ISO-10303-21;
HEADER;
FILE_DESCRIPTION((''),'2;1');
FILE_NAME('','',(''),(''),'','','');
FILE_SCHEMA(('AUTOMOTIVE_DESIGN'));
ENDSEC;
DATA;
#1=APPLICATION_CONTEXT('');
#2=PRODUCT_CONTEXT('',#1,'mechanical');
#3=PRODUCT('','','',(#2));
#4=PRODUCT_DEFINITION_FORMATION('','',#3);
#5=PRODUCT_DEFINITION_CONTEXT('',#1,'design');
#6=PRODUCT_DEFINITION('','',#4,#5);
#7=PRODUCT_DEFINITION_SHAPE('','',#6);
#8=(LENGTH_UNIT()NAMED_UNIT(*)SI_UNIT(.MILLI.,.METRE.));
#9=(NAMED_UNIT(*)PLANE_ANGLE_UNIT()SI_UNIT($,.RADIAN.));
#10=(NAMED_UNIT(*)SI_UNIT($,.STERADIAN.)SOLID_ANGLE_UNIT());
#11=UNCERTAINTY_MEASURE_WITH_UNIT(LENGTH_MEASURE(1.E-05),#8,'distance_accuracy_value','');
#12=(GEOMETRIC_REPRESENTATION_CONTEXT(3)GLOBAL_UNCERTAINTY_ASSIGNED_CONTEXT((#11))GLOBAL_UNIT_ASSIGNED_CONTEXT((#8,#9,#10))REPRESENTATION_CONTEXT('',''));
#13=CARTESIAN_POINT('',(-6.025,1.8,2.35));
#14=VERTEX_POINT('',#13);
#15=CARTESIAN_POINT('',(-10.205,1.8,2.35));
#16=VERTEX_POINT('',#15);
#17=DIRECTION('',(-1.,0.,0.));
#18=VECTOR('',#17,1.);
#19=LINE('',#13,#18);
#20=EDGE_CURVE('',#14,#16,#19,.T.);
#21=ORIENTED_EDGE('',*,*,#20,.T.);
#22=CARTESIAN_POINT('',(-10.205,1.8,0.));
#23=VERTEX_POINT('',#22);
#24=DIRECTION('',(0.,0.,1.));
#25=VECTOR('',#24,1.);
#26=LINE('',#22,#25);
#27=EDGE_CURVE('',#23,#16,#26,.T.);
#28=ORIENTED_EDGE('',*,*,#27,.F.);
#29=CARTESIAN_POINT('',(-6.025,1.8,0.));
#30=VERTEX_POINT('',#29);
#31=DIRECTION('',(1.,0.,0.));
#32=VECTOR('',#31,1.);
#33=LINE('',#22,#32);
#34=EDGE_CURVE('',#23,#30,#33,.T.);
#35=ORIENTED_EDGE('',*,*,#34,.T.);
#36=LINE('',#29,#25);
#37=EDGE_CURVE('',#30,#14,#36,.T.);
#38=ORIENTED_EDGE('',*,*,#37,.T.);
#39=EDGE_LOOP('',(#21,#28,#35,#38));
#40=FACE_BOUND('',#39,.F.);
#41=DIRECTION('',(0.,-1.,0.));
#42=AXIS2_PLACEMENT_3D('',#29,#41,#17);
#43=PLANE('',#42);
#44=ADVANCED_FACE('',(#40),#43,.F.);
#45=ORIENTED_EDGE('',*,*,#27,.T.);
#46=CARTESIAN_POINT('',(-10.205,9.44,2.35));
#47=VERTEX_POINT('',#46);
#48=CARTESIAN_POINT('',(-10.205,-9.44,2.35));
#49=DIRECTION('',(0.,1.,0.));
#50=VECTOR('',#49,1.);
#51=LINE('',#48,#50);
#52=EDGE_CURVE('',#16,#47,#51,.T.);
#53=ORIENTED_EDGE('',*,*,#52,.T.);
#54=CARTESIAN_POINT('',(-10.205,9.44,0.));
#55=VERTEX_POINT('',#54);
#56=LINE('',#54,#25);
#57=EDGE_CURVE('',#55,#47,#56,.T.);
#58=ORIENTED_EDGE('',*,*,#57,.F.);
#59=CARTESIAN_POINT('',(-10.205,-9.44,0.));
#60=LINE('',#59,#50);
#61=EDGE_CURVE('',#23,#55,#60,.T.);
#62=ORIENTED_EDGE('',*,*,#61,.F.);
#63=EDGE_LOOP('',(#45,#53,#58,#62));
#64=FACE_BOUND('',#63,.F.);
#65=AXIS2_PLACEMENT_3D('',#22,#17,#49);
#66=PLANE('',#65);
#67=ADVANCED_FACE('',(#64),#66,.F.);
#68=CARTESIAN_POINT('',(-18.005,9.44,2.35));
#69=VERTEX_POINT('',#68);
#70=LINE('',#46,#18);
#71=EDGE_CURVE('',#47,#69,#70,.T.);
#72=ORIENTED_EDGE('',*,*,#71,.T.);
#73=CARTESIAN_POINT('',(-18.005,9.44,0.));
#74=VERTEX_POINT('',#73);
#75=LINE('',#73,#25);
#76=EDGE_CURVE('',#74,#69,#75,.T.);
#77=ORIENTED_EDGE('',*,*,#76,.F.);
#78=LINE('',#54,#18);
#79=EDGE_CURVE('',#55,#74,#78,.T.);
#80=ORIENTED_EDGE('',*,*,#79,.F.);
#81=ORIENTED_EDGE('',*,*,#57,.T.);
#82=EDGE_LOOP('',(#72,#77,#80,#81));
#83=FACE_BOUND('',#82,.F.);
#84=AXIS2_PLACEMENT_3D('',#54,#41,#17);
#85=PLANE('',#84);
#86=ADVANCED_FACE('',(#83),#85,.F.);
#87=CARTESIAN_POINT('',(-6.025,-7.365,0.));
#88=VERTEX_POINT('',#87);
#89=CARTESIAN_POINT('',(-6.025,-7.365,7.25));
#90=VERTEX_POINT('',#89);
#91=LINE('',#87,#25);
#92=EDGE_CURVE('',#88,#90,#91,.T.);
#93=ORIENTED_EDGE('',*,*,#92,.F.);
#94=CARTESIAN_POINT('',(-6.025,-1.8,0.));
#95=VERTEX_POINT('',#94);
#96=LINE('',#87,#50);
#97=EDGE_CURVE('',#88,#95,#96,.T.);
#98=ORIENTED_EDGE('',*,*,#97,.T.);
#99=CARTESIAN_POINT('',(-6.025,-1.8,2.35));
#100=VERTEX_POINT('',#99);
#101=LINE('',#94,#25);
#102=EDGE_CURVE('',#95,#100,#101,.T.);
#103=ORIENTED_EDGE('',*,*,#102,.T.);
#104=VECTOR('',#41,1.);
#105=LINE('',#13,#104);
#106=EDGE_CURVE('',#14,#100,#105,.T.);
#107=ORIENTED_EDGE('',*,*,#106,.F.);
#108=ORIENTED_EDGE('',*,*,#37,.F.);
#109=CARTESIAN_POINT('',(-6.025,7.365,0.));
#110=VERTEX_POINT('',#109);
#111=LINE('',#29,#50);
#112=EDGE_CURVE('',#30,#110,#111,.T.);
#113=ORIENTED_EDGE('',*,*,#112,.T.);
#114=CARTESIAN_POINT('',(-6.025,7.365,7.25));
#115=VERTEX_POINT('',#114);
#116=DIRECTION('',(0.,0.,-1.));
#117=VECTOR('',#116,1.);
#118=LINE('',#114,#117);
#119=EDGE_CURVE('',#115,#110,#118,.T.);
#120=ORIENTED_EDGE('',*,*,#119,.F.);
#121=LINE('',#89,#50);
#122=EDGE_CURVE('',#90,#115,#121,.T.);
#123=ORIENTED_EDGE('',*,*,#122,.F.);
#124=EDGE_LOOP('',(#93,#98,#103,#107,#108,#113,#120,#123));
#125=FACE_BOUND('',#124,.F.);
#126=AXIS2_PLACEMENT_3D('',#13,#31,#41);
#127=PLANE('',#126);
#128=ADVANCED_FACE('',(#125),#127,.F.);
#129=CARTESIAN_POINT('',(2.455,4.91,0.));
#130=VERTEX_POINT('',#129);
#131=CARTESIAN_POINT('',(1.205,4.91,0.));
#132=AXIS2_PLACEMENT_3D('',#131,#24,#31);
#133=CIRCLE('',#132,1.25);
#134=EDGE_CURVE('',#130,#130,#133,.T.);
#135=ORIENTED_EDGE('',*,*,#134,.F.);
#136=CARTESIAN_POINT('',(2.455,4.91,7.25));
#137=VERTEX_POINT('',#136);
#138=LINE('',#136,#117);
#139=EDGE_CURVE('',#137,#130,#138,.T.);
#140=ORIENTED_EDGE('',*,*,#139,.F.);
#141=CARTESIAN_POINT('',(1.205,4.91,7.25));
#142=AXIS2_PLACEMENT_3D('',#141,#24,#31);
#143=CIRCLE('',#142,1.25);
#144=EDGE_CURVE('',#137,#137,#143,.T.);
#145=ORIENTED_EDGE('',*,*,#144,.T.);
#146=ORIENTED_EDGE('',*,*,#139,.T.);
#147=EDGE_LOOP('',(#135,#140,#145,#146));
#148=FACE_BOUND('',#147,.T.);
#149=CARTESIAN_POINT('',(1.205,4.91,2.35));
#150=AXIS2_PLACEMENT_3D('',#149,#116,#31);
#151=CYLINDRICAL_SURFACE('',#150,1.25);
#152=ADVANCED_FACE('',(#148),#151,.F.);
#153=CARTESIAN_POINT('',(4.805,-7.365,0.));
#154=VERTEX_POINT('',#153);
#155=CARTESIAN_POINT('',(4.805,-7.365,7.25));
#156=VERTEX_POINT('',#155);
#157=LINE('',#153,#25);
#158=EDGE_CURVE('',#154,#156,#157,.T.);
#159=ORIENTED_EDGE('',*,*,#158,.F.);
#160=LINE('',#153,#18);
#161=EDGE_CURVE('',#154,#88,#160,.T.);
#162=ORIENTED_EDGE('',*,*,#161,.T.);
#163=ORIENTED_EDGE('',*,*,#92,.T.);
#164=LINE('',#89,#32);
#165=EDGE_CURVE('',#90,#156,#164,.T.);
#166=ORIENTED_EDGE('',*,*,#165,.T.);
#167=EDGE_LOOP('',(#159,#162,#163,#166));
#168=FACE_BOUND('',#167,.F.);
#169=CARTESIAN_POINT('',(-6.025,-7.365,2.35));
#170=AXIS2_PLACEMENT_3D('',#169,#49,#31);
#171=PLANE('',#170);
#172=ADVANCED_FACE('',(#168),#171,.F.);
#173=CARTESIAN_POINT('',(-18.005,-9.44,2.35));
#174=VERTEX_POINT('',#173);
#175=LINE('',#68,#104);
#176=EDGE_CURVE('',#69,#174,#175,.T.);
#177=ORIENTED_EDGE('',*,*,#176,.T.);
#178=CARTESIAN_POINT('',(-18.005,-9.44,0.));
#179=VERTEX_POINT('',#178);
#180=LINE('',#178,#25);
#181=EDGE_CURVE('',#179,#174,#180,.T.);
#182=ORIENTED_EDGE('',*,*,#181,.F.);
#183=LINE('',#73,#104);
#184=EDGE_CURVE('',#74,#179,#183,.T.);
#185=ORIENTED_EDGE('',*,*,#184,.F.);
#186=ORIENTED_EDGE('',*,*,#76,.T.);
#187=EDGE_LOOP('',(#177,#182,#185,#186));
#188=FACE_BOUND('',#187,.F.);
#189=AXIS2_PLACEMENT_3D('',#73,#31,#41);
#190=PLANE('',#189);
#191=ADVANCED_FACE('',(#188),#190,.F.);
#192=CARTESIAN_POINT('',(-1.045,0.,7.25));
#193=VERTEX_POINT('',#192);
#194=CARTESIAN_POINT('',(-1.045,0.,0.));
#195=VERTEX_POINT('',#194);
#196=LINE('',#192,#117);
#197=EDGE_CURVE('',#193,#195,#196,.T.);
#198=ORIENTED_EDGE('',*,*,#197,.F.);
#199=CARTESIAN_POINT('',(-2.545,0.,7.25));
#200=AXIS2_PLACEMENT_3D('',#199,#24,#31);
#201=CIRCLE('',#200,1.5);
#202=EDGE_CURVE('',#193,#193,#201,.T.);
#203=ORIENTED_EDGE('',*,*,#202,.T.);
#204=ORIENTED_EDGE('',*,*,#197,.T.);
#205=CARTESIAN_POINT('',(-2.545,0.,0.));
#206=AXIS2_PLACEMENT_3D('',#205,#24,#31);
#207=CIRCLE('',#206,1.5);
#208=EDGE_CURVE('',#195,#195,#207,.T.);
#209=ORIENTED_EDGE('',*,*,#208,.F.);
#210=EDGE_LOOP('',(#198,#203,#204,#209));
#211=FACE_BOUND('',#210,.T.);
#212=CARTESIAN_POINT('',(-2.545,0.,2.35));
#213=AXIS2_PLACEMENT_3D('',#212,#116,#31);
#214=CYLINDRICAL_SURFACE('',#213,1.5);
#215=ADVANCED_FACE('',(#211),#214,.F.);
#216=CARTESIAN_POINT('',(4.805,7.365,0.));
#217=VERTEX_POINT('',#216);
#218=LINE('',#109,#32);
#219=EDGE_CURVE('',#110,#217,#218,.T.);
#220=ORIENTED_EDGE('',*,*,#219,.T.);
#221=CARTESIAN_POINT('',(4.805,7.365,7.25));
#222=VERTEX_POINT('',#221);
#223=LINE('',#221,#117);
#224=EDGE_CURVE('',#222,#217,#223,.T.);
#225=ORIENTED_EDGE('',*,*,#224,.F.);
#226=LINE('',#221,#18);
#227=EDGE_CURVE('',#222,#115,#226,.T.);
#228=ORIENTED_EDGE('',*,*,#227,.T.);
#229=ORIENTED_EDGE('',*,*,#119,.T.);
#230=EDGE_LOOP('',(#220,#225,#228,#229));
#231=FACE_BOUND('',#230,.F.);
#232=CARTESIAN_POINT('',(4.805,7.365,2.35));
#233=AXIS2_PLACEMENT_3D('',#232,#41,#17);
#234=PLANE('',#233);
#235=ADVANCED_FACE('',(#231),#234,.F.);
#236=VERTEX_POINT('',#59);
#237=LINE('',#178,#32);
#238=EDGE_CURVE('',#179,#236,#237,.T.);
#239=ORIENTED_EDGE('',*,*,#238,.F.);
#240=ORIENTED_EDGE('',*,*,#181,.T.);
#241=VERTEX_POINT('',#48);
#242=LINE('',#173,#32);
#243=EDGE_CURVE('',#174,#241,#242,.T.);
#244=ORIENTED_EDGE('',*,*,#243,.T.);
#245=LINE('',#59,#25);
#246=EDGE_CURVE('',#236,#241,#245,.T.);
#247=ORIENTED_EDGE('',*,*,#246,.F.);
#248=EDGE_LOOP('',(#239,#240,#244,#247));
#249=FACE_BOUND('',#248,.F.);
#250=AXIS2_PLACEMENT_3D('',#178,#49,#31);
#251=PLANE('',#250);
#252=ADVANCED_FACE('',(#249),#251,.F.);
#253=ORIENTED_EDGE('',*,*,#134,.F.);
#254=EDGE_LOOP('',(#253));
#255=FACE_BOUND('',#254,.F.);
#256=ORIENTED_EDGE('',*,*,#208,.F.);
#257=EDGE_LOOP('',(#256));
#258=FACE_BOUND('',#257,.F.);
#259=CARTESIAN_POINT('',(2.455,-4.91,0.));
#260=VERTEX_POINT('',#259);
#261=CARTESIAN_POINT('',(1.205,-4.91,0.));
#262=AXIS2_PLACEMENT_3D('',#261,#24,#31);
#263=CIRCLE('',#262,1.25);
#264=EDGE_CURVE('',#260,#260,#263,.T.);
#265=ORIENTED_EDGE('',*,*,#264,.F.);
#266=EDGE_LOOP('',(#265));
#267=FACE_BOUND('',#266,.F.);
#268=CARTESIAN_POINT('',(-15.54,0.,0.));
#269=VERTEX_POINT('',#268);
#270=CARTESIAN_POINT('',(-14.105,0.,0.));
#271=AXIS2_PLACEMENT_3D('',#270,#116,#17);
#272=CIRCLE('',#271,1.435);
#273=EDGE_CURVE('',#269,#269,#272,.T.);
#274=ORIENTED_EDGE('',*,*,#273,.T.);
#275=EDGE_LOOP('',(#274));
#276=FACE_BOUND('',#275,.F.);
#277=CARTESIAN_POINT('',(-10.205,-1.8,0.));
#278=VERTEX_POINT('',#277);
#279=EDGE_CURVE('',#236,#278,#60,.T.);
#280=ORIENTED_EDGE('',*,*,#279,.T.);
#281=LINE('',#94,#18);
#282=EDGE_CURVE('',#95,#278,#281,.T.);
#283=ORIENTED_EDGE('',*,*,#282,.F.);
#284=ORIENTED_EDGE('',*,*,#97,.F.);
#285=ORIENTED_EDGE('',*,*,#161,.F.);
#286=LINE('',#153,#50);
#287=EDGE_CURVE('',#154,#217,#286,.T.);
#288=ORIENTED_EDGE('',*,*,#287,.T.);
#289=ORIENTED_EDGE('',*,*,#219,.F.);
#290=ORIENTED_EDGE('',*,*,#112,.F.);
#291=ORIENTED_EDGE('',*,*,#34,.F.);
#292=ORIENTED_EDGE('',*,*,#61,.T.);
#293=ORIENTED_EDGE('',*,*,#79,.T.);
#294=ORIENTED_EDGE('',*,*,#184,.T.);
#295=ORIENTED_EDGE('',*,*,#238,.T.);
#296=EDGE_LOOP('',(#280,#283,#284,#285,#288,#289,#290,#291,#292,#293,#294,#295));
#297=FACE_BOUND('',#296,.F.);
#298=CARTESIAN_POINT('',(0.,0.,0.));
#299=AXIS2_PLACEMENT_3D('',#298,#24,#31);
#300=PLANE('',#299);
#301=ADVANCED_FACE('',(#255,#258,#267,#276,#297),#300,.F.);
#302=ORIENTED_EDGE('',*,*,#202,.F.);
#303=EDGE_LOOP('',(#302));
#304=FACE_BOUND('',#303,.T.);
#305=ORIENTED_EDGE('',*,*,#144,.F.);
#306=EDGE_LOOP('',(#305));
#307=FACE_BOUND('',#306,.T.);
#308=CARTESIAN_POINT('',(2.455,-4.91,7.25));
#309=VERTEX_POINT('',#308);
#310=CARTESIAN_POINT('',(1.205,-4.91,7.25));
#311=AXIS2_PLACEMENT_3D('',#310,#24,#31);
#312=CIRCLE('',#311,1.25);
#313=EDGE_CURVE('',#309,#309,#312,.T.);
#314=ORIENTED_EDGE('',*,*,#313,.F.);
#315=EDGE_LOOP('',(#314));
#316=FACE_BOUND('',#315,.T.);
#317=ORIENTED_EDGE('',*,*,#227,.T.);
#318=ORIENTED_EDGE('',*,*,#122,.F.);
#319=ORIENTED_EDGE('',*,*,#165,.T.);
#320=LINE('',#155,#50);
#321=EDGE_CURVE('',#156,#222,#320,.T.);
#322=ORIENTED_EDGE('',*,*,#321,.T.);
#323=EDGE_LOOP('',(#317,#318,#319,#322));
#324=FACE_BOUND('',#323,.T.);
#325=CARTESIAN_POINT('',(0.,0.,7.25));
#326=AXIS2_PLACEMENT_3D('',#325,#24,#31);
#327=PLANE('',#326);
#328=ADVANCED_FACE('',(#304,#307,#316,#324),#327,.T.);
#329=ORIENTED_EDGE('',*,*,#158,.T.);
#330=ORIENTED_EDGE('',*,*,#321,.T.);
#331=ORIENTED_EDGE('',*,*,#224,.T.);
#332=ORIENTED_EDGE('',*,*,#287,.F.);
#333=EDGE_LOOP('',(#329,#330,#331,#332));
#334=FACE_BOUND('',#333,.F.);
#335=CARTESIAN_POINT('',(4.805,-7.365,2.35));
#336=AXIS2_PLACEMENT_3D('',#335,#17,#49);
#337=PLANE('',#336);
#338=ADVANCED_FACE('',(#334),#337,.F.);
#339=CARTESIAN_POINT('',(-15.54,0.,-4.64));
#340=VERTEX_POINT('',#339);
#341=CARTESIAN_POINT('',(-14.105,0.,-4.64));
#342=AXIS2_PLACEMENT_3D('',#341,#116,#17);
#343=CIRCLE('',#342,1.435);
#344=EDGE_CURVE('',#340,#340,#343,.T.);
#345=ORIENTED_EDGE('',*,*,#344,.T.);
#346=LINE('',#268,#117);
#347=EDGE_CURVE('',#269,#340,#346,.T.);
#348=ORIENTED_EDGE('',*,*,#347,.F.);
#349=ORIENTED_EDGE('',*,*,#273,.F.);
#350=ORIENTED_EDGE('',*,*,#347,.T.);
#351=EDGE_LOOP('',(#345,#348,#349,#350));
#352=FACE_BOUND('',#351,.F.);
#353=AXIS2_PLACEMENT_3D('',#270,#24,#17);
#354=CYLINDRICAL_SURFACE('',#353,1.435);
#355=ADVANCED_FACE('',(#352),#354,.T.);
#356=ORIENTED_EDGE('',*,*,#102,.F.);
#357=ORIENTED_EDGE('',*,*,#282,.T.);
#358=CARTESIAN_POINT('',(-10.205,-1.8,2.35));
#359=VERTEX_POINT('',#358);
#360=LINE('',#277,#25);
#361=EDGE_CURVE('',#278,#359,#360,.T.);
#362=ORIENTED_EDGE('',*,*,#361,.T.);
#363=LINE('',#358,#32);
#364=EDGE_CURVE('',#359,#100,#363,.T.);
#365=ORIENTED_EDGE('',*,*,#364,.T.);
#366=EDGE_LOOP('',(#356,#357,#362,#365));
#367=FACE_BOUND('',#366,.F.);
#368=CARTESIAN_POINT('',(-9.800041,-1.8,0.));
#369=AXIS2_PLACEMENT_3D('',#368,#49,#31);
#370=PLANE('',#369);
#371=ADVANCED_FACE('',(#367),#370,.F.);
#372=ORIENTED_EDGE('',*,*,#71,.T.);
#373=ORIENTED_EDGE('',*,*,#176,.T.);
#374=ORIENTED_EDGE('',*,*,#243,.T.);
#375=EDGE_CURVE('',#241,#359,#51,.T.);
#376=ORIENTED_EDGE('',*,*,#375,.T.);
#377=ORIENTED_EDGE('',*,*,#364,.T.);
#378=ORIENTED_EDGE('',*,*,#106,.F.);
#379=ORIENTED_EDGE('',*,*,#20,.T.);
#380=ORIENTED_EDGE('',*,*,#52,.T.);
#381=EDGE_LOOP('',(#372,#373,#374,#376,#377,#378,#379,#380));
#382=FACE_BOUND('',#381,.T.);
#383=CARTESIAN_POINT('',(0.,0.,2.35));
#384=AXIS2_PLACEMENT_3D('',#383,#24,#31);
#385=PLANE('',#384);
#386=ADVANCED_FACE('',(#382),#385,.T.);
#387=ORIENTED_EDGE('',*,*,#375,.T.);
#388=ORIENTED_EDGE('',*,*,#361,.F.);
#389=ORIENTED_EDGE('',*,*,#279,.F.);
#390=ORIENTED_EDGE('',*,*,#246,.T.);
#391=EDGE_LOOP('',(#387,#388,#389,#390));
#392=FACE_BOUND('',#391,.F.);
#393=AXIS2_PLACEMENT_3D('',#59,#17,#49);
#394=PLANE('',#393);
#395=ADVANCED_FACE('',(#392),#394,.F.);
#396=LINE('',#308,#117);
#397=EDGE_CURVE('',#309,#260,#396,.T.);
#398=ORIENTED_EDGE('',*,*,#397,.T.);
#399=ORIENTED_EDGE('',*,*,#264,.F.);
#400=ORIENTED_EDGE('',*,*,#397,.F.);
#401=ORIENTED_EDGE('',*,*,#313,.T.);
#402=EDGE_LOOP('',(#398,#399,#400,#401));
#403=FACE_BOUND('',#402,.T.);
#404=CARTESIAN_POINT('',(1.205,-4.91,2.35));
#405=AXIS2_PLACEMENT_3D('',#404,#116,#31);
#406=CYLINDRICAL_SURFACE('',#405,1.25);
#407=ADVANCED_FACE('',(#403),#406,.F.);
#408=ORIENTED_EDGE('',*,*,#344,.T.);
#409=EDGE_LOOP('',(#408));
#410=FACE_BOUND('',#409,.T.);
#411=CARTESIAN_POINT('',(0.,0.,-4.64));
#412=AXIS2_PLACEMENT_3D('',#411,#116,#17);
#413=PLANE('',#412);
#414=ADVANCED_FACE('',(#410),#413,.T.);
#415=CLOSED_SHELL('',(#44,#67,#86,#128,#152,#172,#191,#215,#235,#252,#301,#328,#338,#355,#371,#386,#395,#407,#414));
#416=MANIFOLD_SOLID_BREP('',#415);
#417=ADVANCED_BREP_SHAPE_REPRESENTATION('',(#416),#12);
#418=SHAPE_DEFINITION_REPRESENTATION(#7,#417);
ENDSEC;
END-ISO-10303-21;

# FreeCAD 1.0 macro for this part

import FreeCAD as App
import Part
import Sketcher

doc = App.newDocument("Part")
body = doc.addObject("PartDesign::Body", "Body")

# Sketch on XY plane
sketch1 = doc.addObject("Sketcher::SketchObject", "Sketch")
body.addObject(sketch1)
sketch1.AttachmentSupport = (doc.XY_Plane, [""])
sketch1.MapMode = "FlatFace"
sketch1.addGeometry([
    Part.LineSegment(App.Vector(4.8, 7.4, 0), App.Vector(-6, 7.4, 0)),  # 0
    Part.LineSegment(App.Vector(-6, 7.4, 0), App.Vector(-6, 1.8, 0)),  # 1
    Part.LineSegment(App.Vector(-6, 1.8, 0), App.Vector(-10.2, 1.8, 0)),  # 2
    Part.LineSegment(App.Vector(-10.2, 1.8, 0), App.Vector(-10.2, 9.4, 0)),  # 3
    Part.LineSegment(App.Vector(-10.2, 9.4, 0), App.Vector(-18, 9.4, 0)),  # 4
    Part.LineSegment(App.Vector(-18, 9.4, 0), App.Vector(-18, -9.4, 0)),  # 5
    Part.LineSegment(App.Vector(-18, -9.4, 0), App.Vector(-10.2, -9.4, 0)),  # 6
    Part.LineSegment(App.Vector(-10.2, -9.4, 0), App.Vector(-10.2, -1.8, 0)),  # 7
    Part.LineSegment(App.Vector(-10.2, -1.8, 0), App.Vector(-6, -1.8, 0)),  # 8
    Part.LineSegment(App.Vector(-6, -1.8, 0), App.Vector(-6, -7.4, 0)),  # 9
    Part.LineSegment(App.Vector(-6, -7.4, 0), App.Vector(4.8, -7.4, 0)),  # 10
    Part.LineSegment(App.Vector(4.8, -7.4, 0), App.Vector(4.8, 7.4, 0)),  # 11
    Part.Circle(App.Vector(1.2, -4.9, 0), App.Vector(0, 0, 1), 1.2),  # 12
    Part.Circle(App.Vector(-2.5, 0, 0), App.Vector(0, 0, 1), 1.5),  # 13
    Part.Circle(App.Vector(1.2, 4.9, 0), App.Vector(0, 0, 1), 1.2),  # 14
], False)
sketch1.addConstraint([
    Sketcher.Constraint("Coincident", 0, 2, 1, 1),
    Sketcher.Constraint("Coincident", 1, 2, 2, 1),
    Sketcher.Constraint("Coincident", 2, 2, 3, 1),
    Sketcher.Constraint("Coincident", 3, 2, 4, 1),
    Sketcher.Constraint("Coincident", 4, 2, 5, 1),
    Sketcher.Constraint("Coincident", 5, 2, 6, 1),
    Sketcher.Constraint("Coincident", 6, 2, 7, 1),
    Sketcher.Constraint("Coincident", 7, 2, 8, 1),
    Sketcher.Constraint("Coincident", 8, 2, 9, 1),
    Sketcher.Constraint("Coincident", 9, 2, 10, 1),
    Sketcher.Constraint("Coincident", 10, 2, 11, 1),
    Sketcher.Constraint("Coincident", 11, 2, 0, 1),
    Sketcher.Constraint("Horizontal", 0),
    Sketcher.Constraint("Vertical", 1),
    Sketcher.Constraint("Horizontal", 2),
    Sketcher.Constraint("Vertical", 3),
    Sketcher.Constraint("Horizontal", 4),
    Sketcher.Constraint("Vertical", 5),
    Sketcher.Constraint("Horizontal", 6),
    Sketcher.Constraint("Vertical", 7),
    Sketcher.Constraint("Horizontal", 8),
    Sketcher.Constraint("Vertical", 9),
    Sketcher.Constraint("Horizontal", 10),
    Sketcher.Constraint("Vertical", 11),
    Sketcher.Constraint("Equal", 12, 14),
    Sketcher.Constraint("Symmetric", 12, 3, 14, 3, -1),
    Sketcher.Constraint("Symmetric", 3, 2, 6, 2, -1),
    Sketcher.Constraint("Symmetric", 1, 2, 8, 2, -1),
    Sketcher.Constraint("PointOnObject", 13, 3, -1),
    Sketcher.Constraint("Equal", 1, 9),
    Sketcher.Constraint("Diameter", 13, 3.0),
    Sketcher.Constraint("DistanceX", 4, 2, 4, 1, 7.8),
    Sketcher.Constraint("Diameter", 12, 2.5),
    Sketcher.Constraint("DistanceX", 0, 2, 0, 1, 10.83),
    Sketcher.Constraint("DistanceX", 2, 2, 2, 1, 4.18),
    Sketcher.Constraint("DistanceY", 5, 2, 5, 1, 18.88),
    Sketcher.Constraint("DistanceY", 11, 1, 11, 2, 14.73),
    Sketcher.Constraint("DistanceY", 7, 2, 2, 2, 3.6),
    Sketcher.Constraint("DistanceX", 12, 3, 10, 2, 3.6),
    Sketcher.Constraint("DistanceY", 12, 3, -1, 1, 4.91),
    Sketcher.Constraint("DistanceX", 13, 3, 12, 3, 3.75),
    Sketcher.Constraint("DistanceX", -1, 1, 12, 3, 1.205),
])
pad1 = doc.addObject("PartDesign::Pad", "Pad")
body.addObject(pad1)
pad1.Profile = sketch1
pad1.Length = 2.35

# Sketch on XY plane
sketch2 = doc.addObject("Sketcher::SketchObject", "Sketch001")
body.addObject(sketch2)
sketch2.AttachmentSupport = (doc.XY_Plane, [""])
sketch2.MapMode = "FlatFace"
sketch2.AttachmentOffset = App.Placement(App.Vector(0, 0, 2.35), App.Rotation())
sketch2.addGeometry([
    Part.LineSegment(App.Vector(-6, 7.4, 0), App.Vector(-6, -7.4, 0)),  # 0
    Part.LineSegment(App.Vector(-6, -7.4, 0), App.Vector(4.8, -7.4, 0)),  # 1
    Part.LineSegment(App.Vector(4.8, -7.4, 0), App.Vector(4.8, 7.4, 0)),  # 2
    Part.LineSegment(App.Vector(4.8, 7.4, 0), App.Vector(-6, 7.4, 0)),  # 3
    Part.Circle(App.Vector(1.2, -4.9, 0), App.Vector(0, 0, 1), 1.2),  # 4
    Part.Circle(App.Vector(-2.5, 0, 0), App.Vector(0, 0, 1), 1.5),  # 5
    Part.Circle(App.Vector(1.2, 4.9, 0), App.Vector(0, 0, 1), 1.2),  # 6
], False)
sketch2.addConstraint([
    Sketcher.Constraint("Coincident", 0, 2, 1, 1),
    Sketcher.Constraint("Coincident", 1, 2, 2, 1),
    Sketcher.Constraint("Coincident", 2, 2, 3, 1),
    Sketcher.Constraint("Coincident", 3, 2, 0, 1),
    Sketcher.Constraint("Vertical", 0),
    Sketcher.Constraint("Horizontal", 1),
    Sketcher.Constraint("Vertical", 2),
    Sketcher.Constraint("Horizontal", 3),
    Sketcher.Constraint("Equal", 4, 6),
    Sketcher.Constraint("Symmetric", 4, 3, 6, 3, -1),
    Sketcher.Constraint("PointOnObject", 5, 3, -1),
    Sketcher.Constraint("Diameter", 5, 3.0),
    Sketcher.Constraint("Diameter", 4, 2.5),
    Sketcher.Constraint("DistanceX", 1, 1, 1, 2, 10.83),
    Sketcher.Constraint("DistanceY", 0, 2, 0, 1, 14.73),
    Sketcher.Constraint("DistanceX", 4, 3, 1, 2, 3.6),
    Sketcher.Constraint("DistanceY", 4, 3, -1, 1, 4.91),
    Sketcher.Constraint("DistanceX", 5, 3, 4, 3, 3.75),
    Sketcher.Constraint("DistanceX", -1, 1, 4, 3, 1.205),
    Sketcher.Constraint("DistanceY", 0, 2, -1, 1, 7.365),
])
pad2 = doc.addObject("PartDesign::Pad", "Pad001")
body.addObject(pad2)
pad2.Profile = sketch2
pad2.Length = 4.9

# Sketch on XY plane
sketch3 = doc.addObject("Sketcher::SketchObject", "Sketch002")
body.addObject(sketch3)
sketch3.AttachmentSupport = (doc.XY_Plane, [""])
sketch3.MapMode = "FlatFace"
sketch3.addGeometry(Part.Circle(App.Vector(-14.1, 0, 0), App.Vector(0, 0, 1), 1.4), False)
sketch3.addConstraint([
    Sketcher.Constraint("PointOnObject", 0, 3, -1),
    Sketcher.Constraint("Diameter", 0, 2.87),
    Sketcher.Constraint("DistanceX", 0, 3, -1, 1, 14.105),
])
pad3 = doc.addObject("PartDesign::Pad", "Pad002")
body.addObject(pad3)
pad3.Profile = sketch3
pad3.Length = 4.64
pad3.Reversed = True

doc.recompute()
